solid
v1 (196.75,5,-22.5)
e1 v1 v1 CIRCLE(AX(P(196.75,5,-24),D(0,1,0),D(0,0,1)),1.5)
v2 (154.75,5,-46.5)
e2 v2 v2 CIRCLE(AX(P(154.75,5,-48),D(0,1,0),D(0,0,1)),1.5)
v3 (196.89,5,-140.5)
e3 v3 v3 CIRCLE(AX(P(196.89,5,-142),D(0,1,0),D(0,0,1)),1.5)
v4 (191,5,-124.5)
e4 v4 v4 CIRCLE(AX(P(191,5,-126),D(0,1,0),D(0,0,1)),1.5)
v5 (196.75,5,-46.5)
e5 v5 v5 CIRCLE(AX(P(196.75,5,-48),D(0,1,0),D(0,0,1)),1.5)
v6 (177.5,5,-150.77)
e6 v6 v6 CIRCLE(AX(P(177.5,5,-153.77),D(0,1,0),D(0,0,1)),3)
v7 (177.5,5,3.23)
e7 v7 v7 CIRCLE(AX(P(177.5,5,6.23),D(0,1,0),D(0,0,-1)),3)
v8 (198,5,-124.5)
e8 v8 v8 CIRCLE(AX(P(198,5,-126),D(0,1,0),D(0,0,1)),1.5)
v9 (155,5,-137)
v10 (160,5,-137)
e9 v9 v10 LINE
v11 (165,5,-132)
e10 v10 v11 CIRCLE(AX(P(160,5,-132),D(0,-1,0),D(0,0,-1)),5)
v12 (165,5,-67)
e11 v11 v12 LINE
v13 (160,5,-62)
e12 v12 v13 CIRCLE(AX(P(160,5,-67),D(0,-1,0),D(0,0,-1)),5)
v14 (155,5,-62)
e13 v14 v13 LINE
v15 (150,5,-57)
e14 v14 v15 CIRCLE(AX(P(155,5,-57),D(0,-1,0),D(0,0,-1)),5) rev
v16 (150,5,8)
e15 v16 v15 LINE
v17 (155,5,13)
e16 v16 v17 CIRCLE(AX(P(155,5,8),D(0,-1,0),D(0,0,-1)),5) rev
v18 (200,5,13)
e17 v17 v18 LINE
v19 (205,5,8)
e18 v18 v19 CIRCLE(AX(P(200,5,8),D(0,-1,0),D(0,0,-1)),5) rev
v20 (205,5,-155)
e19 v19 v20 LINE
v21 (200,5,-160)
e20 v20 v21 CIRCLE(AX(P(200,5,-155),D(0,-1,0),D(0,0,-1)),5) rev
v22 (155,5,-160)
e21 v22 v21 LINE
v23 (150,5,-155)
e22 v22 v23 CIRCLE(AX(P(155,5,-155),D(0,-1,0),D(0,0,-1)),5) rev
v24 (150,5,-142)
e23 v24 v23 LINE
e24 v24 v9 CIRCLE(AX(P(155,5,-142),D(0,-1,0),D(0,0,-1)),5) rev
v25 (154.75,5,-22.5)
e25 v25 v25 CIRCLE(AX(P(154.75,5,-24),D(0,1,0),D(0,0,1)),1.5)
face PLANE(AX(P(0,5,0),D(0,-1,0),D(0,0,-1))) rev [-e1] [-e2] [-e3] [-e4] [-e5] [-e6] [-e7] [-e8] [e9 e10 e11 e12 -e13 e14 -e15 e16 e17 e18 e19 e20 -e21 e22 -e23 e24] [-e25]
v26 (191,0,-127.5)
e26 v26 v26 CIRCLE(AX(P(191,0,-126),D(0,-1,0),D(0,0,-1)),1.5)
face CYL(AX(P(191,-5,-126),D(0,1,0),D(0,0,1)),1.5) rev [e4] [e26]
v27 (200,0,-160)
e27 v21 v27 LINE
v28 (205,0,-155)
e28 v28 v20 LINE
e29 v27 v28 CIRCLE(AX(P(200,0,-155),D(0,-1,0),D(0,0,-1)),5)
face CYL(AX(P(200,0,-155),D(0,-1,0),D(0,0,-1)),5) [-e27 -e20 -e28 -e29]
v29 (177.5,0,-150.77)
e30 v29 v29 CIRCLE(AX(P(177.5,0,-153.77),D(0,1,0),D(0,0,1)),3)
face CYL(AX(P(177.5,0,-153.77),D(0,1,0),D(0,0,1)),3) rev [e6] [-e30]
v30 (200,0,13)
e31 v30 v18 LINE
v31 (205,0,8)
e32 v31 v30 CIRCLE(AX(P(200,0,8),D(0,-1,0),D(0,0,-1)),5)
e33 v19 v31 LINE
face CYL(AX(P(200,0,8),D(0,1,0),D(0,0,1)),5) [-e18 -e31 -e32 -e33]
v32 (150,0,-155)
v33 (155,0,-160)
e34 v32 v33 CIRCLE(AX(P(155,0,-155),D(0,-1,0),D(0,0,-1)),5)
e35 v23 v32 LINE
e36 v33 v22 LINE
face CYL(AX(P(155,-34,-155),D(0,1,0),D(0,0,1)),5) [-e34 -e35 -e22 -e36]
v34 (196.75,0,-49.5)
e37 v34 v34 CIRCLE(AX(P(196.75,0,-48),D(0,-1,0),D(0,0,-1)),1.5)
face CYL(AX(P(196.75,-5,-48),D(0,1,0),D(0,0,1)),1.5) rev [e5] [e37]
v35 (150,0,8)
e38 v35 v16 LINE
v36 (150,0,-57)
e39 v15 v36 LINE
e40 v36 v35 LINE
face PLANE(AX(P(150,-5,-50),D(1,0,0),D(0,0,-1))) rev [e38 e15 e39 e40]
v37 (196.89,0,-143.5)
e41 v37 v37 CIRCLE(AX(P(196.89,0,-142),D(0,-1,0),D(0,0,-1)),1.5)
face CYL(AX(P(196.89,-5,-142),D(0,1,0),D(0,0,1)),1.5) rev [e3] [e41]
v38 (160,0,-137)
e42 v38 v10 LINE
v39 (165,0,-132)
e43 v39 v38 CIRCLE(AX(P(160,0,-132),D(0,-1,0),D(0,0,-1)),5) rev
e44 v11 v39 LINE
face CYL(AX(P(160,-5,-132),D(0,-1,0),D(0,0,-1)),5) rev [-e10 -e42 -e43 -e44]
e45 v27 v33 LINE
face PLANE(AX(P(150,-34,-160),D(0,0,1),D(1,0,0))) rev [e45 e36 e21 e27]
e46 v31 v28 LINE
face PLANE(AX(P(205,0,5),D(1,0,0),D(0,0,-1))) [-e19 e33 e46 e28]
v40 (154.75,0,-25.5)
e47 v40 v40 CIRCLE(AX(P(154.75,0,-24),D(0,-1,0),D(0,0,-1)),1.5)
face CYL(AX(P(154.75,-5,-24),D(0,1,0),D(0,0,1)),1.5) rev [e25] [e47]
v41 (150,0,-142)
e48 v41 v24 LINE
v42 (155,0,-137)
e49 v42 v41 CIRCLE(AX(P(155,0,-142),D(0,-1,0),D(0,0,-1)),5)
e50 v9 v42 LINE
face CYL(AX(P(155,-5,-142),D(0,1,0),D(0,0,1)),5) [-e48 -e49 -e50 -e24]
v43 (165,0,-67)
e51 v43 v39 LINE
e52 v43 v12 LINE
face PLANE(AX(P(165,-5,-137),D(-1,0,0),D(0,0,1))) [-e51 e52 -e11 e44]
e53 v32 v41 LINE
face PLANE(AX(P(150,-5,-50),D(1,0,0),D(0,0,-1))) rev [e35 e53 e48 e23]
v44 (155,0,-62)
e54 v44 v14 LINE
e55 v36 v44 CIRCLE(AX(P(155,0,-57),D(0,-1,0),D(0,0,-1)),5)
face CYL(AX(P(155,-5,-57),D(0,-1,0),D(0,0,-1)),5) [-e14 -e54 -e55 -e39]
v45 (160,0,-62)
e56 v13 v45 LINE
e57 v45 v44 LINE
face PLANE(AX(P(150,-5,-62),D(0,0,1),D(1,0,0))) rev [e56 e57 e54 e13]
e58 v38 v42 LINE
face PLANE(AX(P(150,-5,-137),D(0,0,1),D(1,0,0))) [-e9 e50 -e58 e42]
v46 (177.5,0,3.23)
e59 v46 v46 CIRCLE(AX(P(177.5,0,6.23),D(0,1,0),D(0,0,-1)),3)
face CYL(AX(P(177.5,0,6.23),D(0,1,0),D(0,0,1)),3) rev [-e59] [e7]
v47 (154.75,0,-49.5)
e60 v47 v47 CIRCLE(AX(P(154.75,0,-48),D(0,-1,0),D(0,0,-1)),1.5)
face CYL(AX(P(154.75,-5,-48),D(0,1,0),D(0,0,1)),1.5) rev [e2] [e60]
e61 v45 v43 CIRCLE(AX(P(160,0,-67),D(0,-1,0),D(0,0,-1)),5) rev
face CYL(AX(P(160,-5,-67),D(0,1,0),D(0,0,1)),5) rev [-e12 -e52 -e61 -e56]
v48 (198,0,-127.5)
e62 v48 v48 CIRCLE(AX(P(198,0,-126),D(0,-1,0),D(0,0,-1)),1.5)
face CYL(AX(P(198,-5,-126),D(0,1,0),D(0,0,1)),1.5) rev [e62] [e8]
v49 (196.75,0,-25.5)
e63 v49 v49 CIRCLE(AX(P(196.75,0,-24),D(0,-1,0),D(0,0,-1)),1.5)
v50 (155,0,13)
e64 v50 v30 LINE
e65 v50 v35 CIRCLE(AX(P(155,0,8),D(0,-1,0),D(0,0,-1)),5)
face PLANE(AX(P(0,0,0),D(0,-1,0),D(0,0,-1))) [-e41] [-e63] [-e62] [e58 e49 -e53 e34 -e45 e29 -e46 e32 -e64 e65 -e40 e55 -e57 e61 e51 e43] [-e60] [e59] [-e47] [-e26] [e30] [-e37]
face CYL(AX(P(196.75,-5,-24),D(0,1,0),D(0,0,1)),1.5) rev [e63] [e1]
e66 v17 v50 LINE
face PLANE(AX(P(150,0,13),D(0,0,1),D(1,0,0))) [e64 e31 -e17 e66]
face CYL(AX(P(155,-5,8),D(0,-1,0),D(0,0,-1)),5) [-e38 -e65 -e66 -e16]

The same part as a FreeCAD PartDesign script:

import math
import FreeCAD as App
import Part
import Sketcher
from FreeCAD import Vector
Q = App.Units.Quantity


def edges_at(feature, points):
    """Names of the edges that pass closest to the given points."""
    edges = feature.Shape.Edges
    near = lambda p: min(range(len(edges)), key=lambda i: edges[i].distToShape(Part.Vertex(*p))[0])
    return sorted({f"Edge{near(p) + 1}" for p in points})

doc = App.newDocument("Part")
body = doc.addObject("PartDesign::Body", "Body")

sketch1 = doc.addObject("Sketcher::SketchObject", "Sketch")
body.addObject(sketch1)
sketch1.AttachmentSupport = (doc.XZ_Plane, [""])
sketch1.MapMode = "FlatFace"
sketch1.addGeometry(Part.LineSegment(Vector(0, -200, 0), Vector(0, 0, 0)), False)
sketch1.addGeometry(Part.LineSegment(Vector(0, 0, 0), Vector(200, 0, 0)), False)
sketch1.addGeometry(Part.LineSegment(Vector(200, 0, 0), Vector(200, -200, 0)), False)
sketch1.addGeometry(Part.LineSegment(Vector(200, -200, 0), Vector(0, -200, 0)), False)
sketch1.addConstraint(Sketcher.Constraint("Coincident", 0, 2, 1, 1))
sketch1.addConstraint(Sketcher.Constraint("Coincident", 1, 2, 2, 1))
sketch1.addConstraint(Sketcher.Constraint("Coincident", 2, 2, 3, 1))
sketch1.addConstraint(Sketcher.Constraint("Coincident", 3, 2, 0, 1))
sketch1.addConstraint(Sketcher.Constraint("Vertical", 0))
sketch1.addConstraint(Sketcher.Constraint("Horizontal", 1))
sketch1.addConstraint(Sketcher.Constraint("Vertical", 2))
sketch1.addConstraint(Sketcher.Constraint("Horizontal", 3))
sketch1.addConstraint(Sketcher.Constraint("Coincident", 0, 2, -1, 1))
sketch1.addConstraint(Sketcher.Constraint("Equal", 3, 0))
sketch1.addConstraint(Sketcher.Constraint("DistanceX", 1, 1, 1, 2, Q("200 mm")))
pad1 = doc.addObject("PartDesign::Pad", "Pad")
body.addObject(pad1)
pad1.Profile = sketch1
pad1.Length = 5
pad1.Reversed = True

sketch2 = doc.addObject("Sketcher::SketchObject", "Sketch001")
body.addObject(sketch2)
sketch2.AttachmentSupport = (doc.XZ_Plane, [""])
sketch2.MapMode = "FlatFace"
sketch2.AttachmentOffset = App.Placement(Vector(0, 0, -5), App.Rotation())
sketch2.addGeometry(Part.LineSegment(Vector(50, -150, 0), Vector(50, -50, 0)), False)
sketch2.addGeometry(Part.LineSegment(Vector(50, -50, 0), Vector(150, -50, 0)), False)
sketch2.addGeometry(Part.LineSegment(Vector(150, -50, 0), Vector(150, -150, 0)), False)
sketch2.addGeometry(Part.LineSegment(Vector(150, -150, 0), Vector(50, -150, 0)), False)
sketch2.addConstraint(Sketcher.Constraint("Coincident", 0, 2, 1, 1))
sketch2.addConstraint(Sketcher.Constraint("Coincident", 1, 2, 2, 1))
sketch2.addConstraint(Sketcher.Constraint("Coincident", 2, 2, 3, 1))
sketch2.addConstraint(Sketcher.Constraint("Coincident", 3, 2, 0, 1))
sketch2.addConstraint(Sketcher.Constraint("Vertical", 0))
sketch2.addConstraint(Sketcher.Constraint("Horizontal", 1))
sketch2.addConstraint(Sketcher.Constraint("Vertical", 2))
sketch2.addConstraint(Sketcher.Constraint("Horizontal", 3))
sketch2.addConstraint(Sketcher.Constraint("Equal", 3, 0))
sketch2.addConstraint(Sketcher.Constraint("DistanceX", 1, 1, 1, 2, Q("100 mm")))
sketch2.addConstraint(Sketcher.Constraint("DistanceX", -1, 1, 0, 2, Q("50 mm")))
sketch2.addConstraint(Sketcher.Constraint("DistanceY", 0, 2, -1, 1, Q("50 mm")))
pocket1 = doc.addObject("PartDesign::Pocket", "Pocket")
body.addObject(pocket1)
pocket1.Profile = sketch2
pocket1.Length = 10
pocket1.Reversed = True
doc.recompute()

fillet = doc.addObject("PartDesign::Fillet", "Fillet")
body.addObject(fillet)
fillet.Base = (pocket1, edges_at(pocket1, [
    (150, 2.5, -150),
    (150, 2.5, -50),
    (50, 2.5, -50),
    (50, 2.5, -150),
]))
fillet.Radius = 10
doc.recompute()

fillet2 = doc.addObject("PartDesign::Fillet", "Fillet001")
body.addObject(fillet2)
fillet2.Base = (fillet, edges_at(fillet, [
    (0, 2.5, -200),
    (200, 2.5, -200),
    (200, 2.5, 0),
    (0, 2.5, 0),
]))
fillet2.Radius = 10

sketch3 = doc.addObject("Sketcher::SketchObject", "Sketch002")
body.addObject(sketch3)
sketch3.AttachmentSupport = (doc.XZ_Plane, [""])
sketch3.MapMode = "FlatFace"
sketch3.AttachmentOffset = App.Placement(Vector(0, 0, -5), App.Rotation())
sketch3.addGeometry(Part.Circle(Vector(10, -190, 0), Vector(0, 0, 1), 3), False)
sketch3.addGeometry(Part.Circle(Vector(190, -190, 0), Vector(0, 0, 1), 3), False)
sketch3.addGeometry(Part.Circle(Vector(190, -10, 0), Vector(0, 0, 1), 3), False)
sketch3.addGeometry(Part.Circle(Vector(10, -10, 0), Vector(0, 0, 1), 3), False)
sketch3.addConstraint(Sketcher.Constraint("Equal", 0, 1))
sketch3.addConstraint(Sketcher.Constraint("Equal", 1, 2))
sketch3.addConstraint(Sketcher.Constraint("Equal", 2, 3))
sketch3.addConstraint(Sketcher.Constraint("Horizontal", 0, 3, 1, 3))
sketch3.addConstraint(Sketcher.Constraint("Horizontal", 2, 3, 3, 3))
sketch3.addConstraint(Sketcher.Constraint("Vertical", 1, 3, 2, 3))
sketch3.addConstraint(Sketcher.Constraint("Vertical", 0, 3, 3, 3))
sketch3.addConstraint(Sketcher.Constraint("Diameter", 0, Q("6 mm")))
sketch3.addConstraint(Sketcher.Constraint("DistanceX", -1, 1, 0, 3, Q("10 mm")))
sketch3.addConstraint(Sketcher.Constraint("DistanceY", 0, 3, -1, 1, Q("190 mm")))
sketch3.addConstraint(Sketcher.Constraint("DistanceX", -1, 1, 1, 3, Q("190 mm")))
sketch3.addConstraint(Sketcher.Constraint("DistanceY", 2, 3, -1, 1, Q("10 mm")))
pocket2 = doc.addObject("PartDesign::Pocket", "Pocket001")
body.addObject(pocket2)
pocket2.Profile = sketch3
pocket2.Length = 10
pocket2.Reversed = True

sketch4 = doc.addObject("Sketcher::SketchObject", "Sketch003")
body.addObject(sketch4)
sketch4.AttachmentSupport = (doc.XZ_Plane, [""])
sketch4.MapMode = "FlatFace"
sketch4.AttachmentOffset = App.Placement(Vector(0, 0, -5), App.Rotation())
sketch4.addGeometry(Part.Circle(Vector(198, -126, 0), Vector(0, 0, 1), 1.5), False)
sketch4.addGeometry(Part.Circle(Vector(191, -126, 0), Vector(0, 0, 1), 1.5), False)
sketch4.addGeometry(Part.Circle(Vector(196.89, -142, 0), Vector(0, 0, 1), 1.5), False)
sketch4.addGeometry(Part.Circle(Vector(154.75, -48, 0), Vector(0, 0, 1), 1.5), False)
sketch4.addGeometry(Part.Circle(Vector(196.75, -48, 0), Vector(0, 0, 1), 1.5), False)
sketch4.addGeometry(Part.Circle(Vector(196.75, -24, 0), Vector(0, 0, 1), 1.5), False)
sketch4.addGeometry(Part.Circle(Vector(154.75, -24, 0), Vector(0, 0, 1), 1.5), False)
sketch4.addGeometry(Part.Circle(Vector(242.150034, 166.330778, 0), Vector(0, 0, 1), 1.5), False)
sketch4.addGeometry(Part.Circle(Vector(285.400034, 64.330778, 0), Vector(0, 0, 1), 1.5), False)
sketch4.addGeometry(Part.Circle(Vector(242.150034, 142.330778, 0), Vector(0, 0, 1), 1.5), False)
sketch4.addGeometry(Part.Circle(Vector(284.290034, 48.330778, 0), Vector(0, 0, 1), 1.5), False)
sketch4.addGeometry(Part.Circle(Vector(284.150034, 142.330778, 0), Vector(0, 0, 1), 1.5), False)
sketch4.addGeometry(Part.Circle(Vector(284.150034, 166.330778, 0), Vector(0, 0, 1), 1.5), False)
sketch4.addGeometry(Part.Circle(Vector(278.400034, 64.330778, 0), Vector(0, 0, 1), 1.5), False)
sketch4.addConstraint(Sketcher.Constraint("Equal", 0, 1))
sketch4.addConstraint(Sketcher.Constraint("Equal", 1, 2))
sketch4.addConstraint(Sketcher.Constraint("Equal", 2, 3))
sketch4.addConstraint(Sketcher.Constraint("Equal", 3, 4))
sketch4.addConstraint(Sketcher.Constraint("Equal", 4, 5))
sketch4.addConstraint(Sketcher.Constraint("Equal", 5, 6))
sketch4.addConstraint(Sketcher.Constraint("Equal", 6, 7))
sketch4.addConstraint(Sketcher.Constraint("Equal", 7, 8))
sketch4.addConstraint(Sketcher.Constraint("Equal", 8, 9))
sketch4.addConstraint(Sketcher.Constraint("Equal", 9, 10))
sketch4.addConstraint(Sketcher.Constraint("Equal", 10, 11))
sketch4.addConstraint(Sketcher.Constraint("Equal", 11, 12))
sketch4.addConstraint(Sketcher.Constraint("Equal", 12, 13))
sketch4.addConstraint(Sketcher.Constraint("Horizontal", 0, 3, 1, 3))
sketch4.addConstraint(Sketcher.Constraint("Horizontal", 3, 3, 4, 3))
sketch4.addConstraint(Sketcher.Constraint("Horizontal", 5, 3, 6, 3))
sketch4.addConstraint(Sketcher.Constraint("Horizontal", 9, 3, 11, 3))
sketch4.addConstraint(Sketcher.Constraint("Horizontal", 7, 3, 12, 3))
sketch4.addConstraint(Sketcher.Constraint("Horizontal", 8, 3, 13, 3))
sketch4.addConstraint(Sketcher.Constraint("Vertical", 4, 3, 5, 3))
sketch4.addConstraint(Sketcher.Constraint("Vertical", 3, 3, 6, 3))
sketch4.addConstraint(Sketcher.Constraint("Vertical", 7, 3, 9, 3))
sketch4.addConstraint(Sketcher.Constraint("Vertical", 11, 3, 12, 3))
sketch4.addConstraint(Sketcher.Constraint("Diameter", 0, Q("3 mm")))
sketch4.addConstraint(Sketcher.Constraint("DistanceX", -1, 1, 0, 3, Q("198 mm")))
sketch4.addConstraint(Sketcher.Constraint("DistanceY", 0, 3, -1, 1, Q("126 mm")))
sketch4.addConstraint(Sketcher.Constraint("DistanceX", -1, 1, 1, 3, Q("191 mm")))
sketch4.addConstraint(Sketcher.Constraint("DistanceY", 2, 3, -1, 1, Q("142 mm")))
sketch4.addConstraint(Sketcher.Constraint("DistanceY", 3, 3, -1, 1, Q("48 mm")))
sketch4.addConstraint(Sketcher.Constraint("DistanceY", 5, 3, -1, 1, Q("24 mm")))
sketch4.addConstraint(Sketcher.Constraint("DistanceX", 3, 3, 4, 3, Q("42 mm")))
sketch4.addConstraint(Sketcher.Constraint("DistanceY", 8, 3, 7, 3, Q("102 mm")))
sketch4.addConstraint(Sketcher.Constraint("DistanceY", 9, 3, 7, 3, Q("24 mm")))
sketch4.addConstraint(Sketcher.Constraint("DistanceY", 10, 3, 8, 3, Q("16 mm")))
sketch4.addConstraint(Sketcher.Constraint("DistanceX", 9, 3, 11, 3, Q("42 mm")))
sketch4.addConstraint(Sketcher.Constraint("DistanceX", 13, 3, 8, 3, Q("7 mm")))
sketch4.addConstraint(Sketcher.Constraint("DistanceX", -1, 1, 2, 3, Q("196.89 mm")))
sketch4.addConstraint(Sketcher.Constraint("DistanceX", -1, 1, 3, 3, Q("154.75 mm")))
sketch4.addConstraint(Sketcher.Constraint("DistanceX", 7, 3, 8, 3, Q("43.25 mm")))
sketch4.addConstraint(Sketcher.Constraint("DistanceX", 10, 3, 8, 3, Q("1.11 mm")))
sketch4.addConstraint(Sketcher.Constraint("DistanceY", -1, 1, 7, 3, Q("166.330778 mm")))
sketch4.addConstraint(Sketcher.Constraint("DistanceX", -1, 1, 7, 3, Q("242.150034 mm")))
pocket3 = doc.addObject("PartDesign::Pocket", "Pocket002")
body.addObject(pocket3)
pocket3.Profile = sketch4
pocket3.Length = 10
pocket3.Reversed = True

sketch5 = doc.addObject("Sketcher::SketchObject", "Sketch004")
body.addObject(sketch5)
sketch5.AttachmentSupport = (doc.XZ_Plane, [""])
sketch5.MapMode = "FlatFace"
sketch5.AttachmentOffset = App.Placement(Vector(0, 0, -5), App.Rotation())
sketch5.addGeometry(Part.LineSegment(Vector(-5, -205, 0), Vector(-5, 5, 0)), False)
sketch5.addGeometry(Part.LineSegment(Vector(-5, 5, 0), Vector(205, 5, 0)), False)
sketch5.addGeometry(Part.LineSegment(Vector(205, 5, 0), Vector(205, -205, 0)), False)
sketch5.addGeometry(Part.LineSegment(Vector(205, -205, 0), Vector(-5, -205, 0)), False)
sketch5.addGeometry(Part.LineSegment(Vector(0, -10, 0), Vector(0, -190, 0)), False)
sketch5.addGeometry(Part.ArcOfCircle(Part.Circle(Vector(10, -190, 0), Vector(0, 0, 1), 10), math.radians(180), math.radians(270)), False)
sketch5.addGeometry(Part.LineSegment(Vector(10, -200, 0), Vector(190, -200, 0)), False)
sketch5.addGeometry(Part.ArcOfCircle(Part.Circle(Vector(190, -190, 0), Vector(0, 0, 1), 10), math.radians(-90), math.radians(0)), False)
sketch5.addGeometry(Part.LineSegment(Vector(200, -190, 0), Vector(200, -10, 0)), False)
sketch5.addGeometry(Part.ArcOfCircle(Part.Circle(Vector(190, -10, 0), Vector(0, 0, 1), 10), math.radians(0), math.radians(90)), False)
sketch5.addGeometry(Part.LineSegment(Vector(190, 0, 0), Vector(10, 0, 0)), False)
sketch5.addGeometry(Part.ArcOfCircle(Part.Circle(Vector(10, -10, 0), Vector(0, 0, 1), 10), math.radians(90), math.radians(180)), False)
sketch5.addConstraint(Sketcher.Constraint("Coincident", 0, 2, 1, 1))
sketch5.addConstraint(Sketcher.Constraint("Coincident", 1, 2, 2, 1))
sketch5.addConstraint(Sketcher.Constraint("Coincident", 2, 2, 3, 1))
sketch5.addConstraint(Sketcher.Constraint("Coincident", 3, 2, 0, 1))
sketch5.addConstraint(Sketcher.Constraint("Tangent", 4, 2, 5, 1))
sketch5.addConstraint(Sketcher.Constraint("Tangent", 5, 2, 6, 1))
sketch5.addConstraint(Sketcher.Constraint("Tangent", 6, 2, 7, 1))
sketch5.addConstraint(Sketcher.Constraint("Tangent", 7, 2, 8, 1))
sketch5.addConstraint(Sketcher.Constraint("Tangent", 8, 2, 9, 1))
sketch5.addConstraint(Sketcher.Constraint("Tangent", 9, 2, 10, 1))
sketch5.addConstraint(Sketcher.Constraint("Tangent", 10, 2, 11, 1))
sketch5.addConstraint(Sketcher.Constraint("Tangent", 11, 2, 4, 1))
sketch5.addConstraint(Sketcher.Constraint("Vertical", 0))
sketch5.addConstraint(Sketcher.Constraint("Horizontal", 1))
sketch5.addConstraint(Sketcher.Constraint("Vertical", 2))
sketch5.addConstraint(Sketcher.Constraint("Horizontal", 3))
sketch5.addConstraint(Sketcher.Constraint("Vertical", 4))
sketch5.addConstraint(Sketcher.Constraint("Horizontal", 6))
sketch5.addConstraint(Sketcher.Constraint("Vertical", 8))
sketch5.addConstraint(Sketcher.Constraint("Horizontal", 10))
sketch5.addConstraint(Sketcher.Constraint("Equal", 5, 7))
sketch5.addConstraint(Sketcher.Constraint("Equal", 7, 9))
sketch5.addConstraint(Sketcher.Constraint("Equal", 9, 11))
sketch5.addConstraint(Sketcher.Constraint("PointOnObject", 4, 2, -2))
sketch5.addConstraint(Sketcher.Constraint("PointOnObject", 9, 2, -1))
sketch5.addConstraint(Sketcher.Constraint("Equal", 3, 0))
sketch5.addConstraint(Sketcher.Constraint("Equal", 10, 4))
sketch5.addConstraint(Sketcher.Constraint("Radius", 5, Q("10 mm")))
sketch5.addConstraint(Sketcher.Constraint("DistanceX", 1, 1, 1, 2, Q("210 mm")))
sketch5.addConstraint(Sketcher.Constraint("DistanceX", 6, 1, 6, 2, Q("180 mm")))
sketch5.addConstraint(Sketcher.Constraint("DistanceX", 0, 2, -1, 1, Q("5 mm")))
sketch5.addConstraint(Sketcher.Constraint("DistanceY", -1, 1, 0, 2, Q("5 mm")))
pad2 = doc.addObject("PartDesign::Pad", "Pad001")
body.addObject(pad2)
pad2.Profile = sketch5
pad2.Length = 5
doc.recompute()

fillet3 = doc.addObject("PartDesign::Fillet", "Fillet002")
body.addObject(fillet3)
fillet3.Base = (pad2, edges_at(pad2, [
    (205, 2.5, -205),
    (205, 2.5, 5),
    (-5, 2.5, 5),
    (-5, 2.5, -205),
]))
fillet3.Radius = 10
doc.recompute()

datumline = doc.addObject("PartDesign::Line", "DatumLine")
body.addObject(datumline)
datumline.Placement = App.Placement(Vector(100, 0, -100), App.Rotation(Vector(0, 0, 1), Vector(0, 1, 0)))
polarpattern = doc.addObject("PartDesign::PolarPattern", "PolarPattern")
body.addObject(polarpattern)
polarpattern.Originals = [pocket3]
polarpattern.Axis = (datumline, [""])
polarpattern.Angle = 360
polarpattern.Occurrences = 4
body.Tip = polarpattern

sketch6 = doc.addObject("Sketcher::SketchObject", "Sketch005")
body.addObject(sketch6)
sketch6.AttachmentSupport = (doc.XZ_Plane, [""])
sketch6.MapMode = "FlatFace"
sketch6.AttachmentOffset = App.Placement(Vector(0, 0, -5), App.Rotation())
sketch6.addGeometry(Part.LineSegment(Vector(-35.703, -235.703, 0), Vector(-35.703, 35.703, 0)), False)
sketch6.addGeometry(Part.LineSegment(Vector(-35.703, 35.703, 0), Vector(235.703, 35.703, 0)), False)
sketch6.addGeometry(Part.LineSegment(Vector(235.703, 35.703, 0), Vector(235.703, -235.703, 0)), False)
sketch6.addGeometry(Part.LineSegment(Vector(235.703, -235.703, 0), Vector(-35.703, -235.703, 0)), False)
sketch6.addGeometry(Part.LineSegment(Vector(205, -17, 0), Vector(150, -17, 0)), False)
sketch6.addGeometry(Part.LineSegment(Vector(150, -17, 0), Vector(150, -149, 0)), False)
sketch6.addGeometry(Part.LineSegment(Vector(150, -149, 0), Vector(205, -149, 0)), False)
sketch6.addGeometry(Part.LineSegment(Vector(205, -149, 0), Vector(205, -17, 0)), False)
sketch6.addConstraint(Sketcher.Constraint("Coincident", 0, 2, 1, 1))
sketch6.addConstraint(Sketcher.Constraint("Coincident", 1, 2, 2, 1))
sketch6.addConstraint(Sketcher.Constraint("Coincident", 2, 2, 3, 1))
sketch6.addConstraint(Sketcher.Constraint("Coincident", 3, 2, 0, 1))
sketch6.addConstraint(Sketcher.Constraint("Coincident", 4, 2, 5, 1))
sketch6.addConstraint(Sketcher.Constraint("Coincident", 5, 2, 6, 1))
sketch6.addConstraint(Sketcher.Constraint("Coincident", 6, 2, 7, 1))
sketch6.addConstraint(Sketcher.Constraint("Coincident", 7, 2, 4, 1))
sketch6.addConstraint(Sketcher.Constraint("Vertical", 0))
sketch6.addConstraint(Sketcher.Constraint("Horizontal", 1))
sketch6.addConstraint(Sketcher.Constraint("Vertical", 2))
sketch6.addConstraint(Sketcher.Constraint("Horizontal", 3))
sketch6.addConstraint(Sketcher.Constraint("Horizontal", 4))
sketch6.addConstraint(Sketcher.Constraint("Vertical", 5))
sketch6.addConstraint(Sketcher.Constraint("Horizontal", 6))
sketch6.addConstraint(Sketcher.Constraint("Vertical", 7))
sketch6.addConstraint(Sketcher.Constraint("Equal", 3, 0))
sketch6.addConstraint(Sketcher.Constraint("DistanceX", 4, 2, 4, 1, Q("55 mm")))
sketch6.addConstraint(Sketcher.Constraint("DistanceY", 5, 2, 5, 1, Q("132 mm")))
sketch6.addConstraint(Sketcher.Constraint("DistanceX", -1, 1, 4, 2, Q("150 mm")))
sketch6.addConstraint(Sketcher.Constraint("DistanceY", 4, 2, -1, 1, Q("17 mm")))
sketch6.addConstraint(Sketcher.Constraint("DistanceX", 1, 1, 1, 2, Q("271.406 mm")))
sketch6.addConstraint(Sketcher.Constraint("DistanceX", 0, 2, -1, 1, Q("35.703 mm")))
sketch6.addConstraint(Sketcher.Constraint("DistanceY", -1, 1, 0, 2, Q("35.703 mm")))
pocket4 = doc.addObject("PartDesign::Pocket", "Pocket003")
body.addObject(pocket4)
pocket4.Profile = sketch6
pocket4.Length = 10
pocket4.Reversed = True

sketch7 = doc.addObject("Sketcher::SketchObject", "Sketch006")
body.addObject(sketch7)
sketch7.AttachmentSupport = (doc.XZ_Plane, [""])
sketch7.MapMode = "FlatFace"
sketch7.AttachmentOffset = App.Placement(Vector(0, 0, -5), App.Rotation())
sketch7.addGeometry(Part.LineSegment(Vector(150, -17, 0), Vector(150, 13, 0)), False)
sketch7.addGeometry(Part.LineSegment(Vector(150, 13, 0), Vector(205, 13, 0)), False)
sketch7.addGeometry(Part.LineSegment(Vector(205, 13, 0), Vector(205, -17, 0)), False)
sketch7.addGeometry(Part.LineSegment(Vector(205, -17, 0), Vector(150, -17, 0)), False)
sketch7.addGeometry(Part.LineSegment(Vector(150, -179, 0), Vector(150, -149, 0)), False)
sketch7.addGeometry(Part.LineSegment(Vector(150, -149, 0), Vector(205, -149, 0)), False)
sketch7.addGeometry(Part.LineSegment(Vector(205, -149, 0), Vector(205, -179, 0)), False)
sketch7.addGeometry(Part.LineSegment(Vector(205, -179, 0), Vector(150, -179, 0)), False)
sketch7.addConstraint(Sketcher.Constraint("Coincident", 0, 2, 1, 1))
sketch7.addConstraint(Sketcher.Constraint("Coincident", 1, 2, 2, 1))
sketch7.addConstraint(Sketcher.Constraint("Coincident", 2, 2, 3, 1))
sketch7.addConstraint(Sketcher.Constraint("Coincident", 3, 2, 0, 1))
sketch7.addConstraint(Sketcher.Constraint("Coincident", 4, 2, 5, 1))
sketch7.addConstraint(Sketcher.Constraint("Coincident", 5, 2, 6, 1))
sketch7.addConstraint(Sketcher.Constraint("Coincident", 6, 2, 7, 1))
sketch7.addConstraint(Sketcher.Constraint("Coincident", 7, 2, 4, 1))
sketch7.addConstraint(Sketcher.Constraint("Vertical", 0))
sketch7.addConstraint(Sketcher.Constraint("Horizontal", 1))
sketch7.addConstraint(Sketcher.Constraint("Vertical", 2))
sketch7.addConstraint(Sketcher.Constraint("Horizontal", 3))
sketch7.addConstraint(Sketcher.Constraint("Vertical", 4))
sketch7.addConstraint(Sketcher.Constraint("Horizontal", 5))
sketch7.addConstraint(Sketcher.Constraint("Vertical", 6))
sketch7.addConstraint(Sketcher.Constraint("Horizontal", 7))
sketch7.addConstraint(Sketcher.Constraint("Vertical", 3, 2, 4, 2))
sketch7.addConstraint(Sketcher.Constraint("Vertical", 2, 2, 5, 2))
sketch7.addConstraint(Sketcher.Constraint("Equal", 2, 4))
sketch7.addConstraint(Sketcher.Constraint("DistanceX", 1, 1, 1, 2, Q("55 mm")))
sketch7.addConstraint(Sketcher.Constraint("DistanceY", 0, 1, 0, 2, Q("30 mm")))
sketch7.addConstraint(Sketcher.Constraint("DistanceX", -1, 1, 0, 2, Q("150 mm")))
sketch7.addConstraint(Sketcher.Constraint("DistanceY", -1, 1, 0, 2, Q("13 mm")))
sketch7.addConstraint(Sketcher.Constraint("DistanceY", 4, 2, -1, 1, Q("149 mm")))
pad3 = doc.addObject("PartDesign::Pad", "Pad002")
body.addObject(pad3)
pad3.Profile = sketch7
pad3.Length = 5

sketch8 = doc.addObject("Sketcher::SketchObject", "Sketch007")
body.addObject(sketch8)
sketch8.AttachmentSupport = (doc.XZ_Plane, [""])
sketch8.MapMode = "FlatFace"
sketch8.AttachmentOffset = App.Placement(Vector(0, 0, -5), App.Rotation())
sketch8.addGeometry(Part.Circle(Vector(177.5, -153.77, 0), Vector(0, 0, 1), 3), False)
sketch8.addGeometry(Part.Circle(Vector(177.5, 6.23, 0), Vector(0, 0, 1), 3), False)
sketch8.addConstraint(Sketcher.Constraint("Equal", 0, 1))
sketch8.addConstraint(Sketcher.Constraint("Vertical", 0, 3, 1, 3))
sketch8.addConstraint(Sketcher.Constraint("Diameter", 0, Q("6 mm")))
sketch8.addConstraint(Sketcher.Constraint("DistanceY", 0, 3, 1, 3, Q("160 mm")))
sketch8.addConstraint(Sketcher.Constraint("DistanceX", -1, 1, 0, 3, Q("177.5 mm")))
sketch8.addConstraint(Sketcher.Constraint("DistanceY", 0, 3, -1, 1, Q("153.77 mm")))
pocket5 = doc.addObject("PartDesign::Pocket", "Pocket004")
body.addObject(pocket5)
pocket5.Profile = sketch8
pocket5.Length = 5
pocket5.Reversed = True

sketch9 = doc.addObject("Sketcher::SketchObject", "Sketch008")
body.addObject(sketch9)
sketch9.AttachmentSupport = (doc.XZ_Plane, [""])
sketch9.MapMode = "FlatFace"
sketch9.AttachmentOffset = App.Placement(Vector(0, 0, -5), App.Rotation())
sketch9.addGeometry(Part.LineSegment(Vector(150, -179, 0), Vector(150, -160, 0)), False)
sketch9.addGeometry(Part.LineSegment(Vector(150, -160, 0), Vector(205, -160, 0)), False)
sketch9.addGeometry(Part.LineSegment(Vector(205, -160, 0), Vector(205, -179, 0)), False)
sketch9.addGeometry(Part.LineSegment(Vector(205, -179, 0), Vector(150, -179, 0)), False)
sketch9.addConstraint(Sketcher.Constraint("Coincident", 0, 2, 1, 1))
sketch9.addConstraint(Sketcher.Constraint("Coincident", 1, 2, 2, 1))
sketch9.addConstraint(Sketcher.Constraint("Coincident", 2, 2, 3, 1))
sketch9.addConstraint(Sketcher.Constraint("Coincident", 3, 2, 0, 1))
sketch9.addConstraint(Sketcher.Constraint("Vertical", 0))
sketch9.addConstraint(Sketcher.Constraint("Horizontal", 1))
sketch9.addConstraint(Sketcher.Constraint("Vertical", 2))
sketch9.addConstraint(Sketcher.Constraint("Horizontal", 3))
sketch9.addConstraint(Sketcher.Constraint("DistanceX", 1, 1, 1, 2, Q("55 mm")))
sketch9.addConstraint(Sketcher.Constraint("DistanceY", 0, 1, 0, 2, Q("19 mm")))
sketch9.addConstraint(Sketcher.Constraint("DistanceX", -1, 1, 0, 2, Q("150 mm")))
sketch9.addConstraint(Sketcher.Constraint("DistanceY", 0, 2, -1, 1, Q("160 mm")))
pocket6 = doc.addObject("PartDesign::Pocket", "Pocket005")
body.addObject(pocket6)
pocket6.Profile = sketch9
pocket6.Length = 39
pocket6.Reversed = True
doc.recompute()

fillet4 = doc.addObject("PartDesign::Fillet", "Fillet003")
body.addObject(fillet4)
fillet4.Base = (pocket6, edges_at(pocket6, [
    (205, 2.5, 13),
    (150, 2.5, 13),
    (150, 2.5, -160),
    (205, 2.5, -160),
]))
fillet4.Radius = 5

sketch10 = doc.addObject("Sketcher::SketchObject", "Sketch009")
body.addObject(sketch10)
sketch10.AttachmentSupport = (doc.XZ_Plane, [""])
sketch10.MapMode = "FlatFace"
sketch10.AttachmentOffset = App.Placement(Vector(0, 0, -5), App.Rotation())
sketch10.addGeometry(Part.LineSegment(Vector(150, -137, 0), Vector(150, -62, 0)), False)
sketch10.addGeometry(Part.LineSegment(Vector(150, -62, 0), Vector(165, -62, 0)), False)
sketch10.addGeometry(Part.LineSegment(Vector(165, -62, 0), Vector(165, -137, 0)), False)
sketch10.addGeometry(Part.LineSegment(Vector(165, -137, 0), Vector(150, -137, 0)), False)
sketch10.addConstraint(Sketcher.Constraint("Coincident", 0, 2, 1, 1))
sketch10.addConstraint(Sketcher.Constraint("Coincident", 1, 2, 2, 1))
sketch10.addConstraint(Sketcher.Constraint("Coincident", 2, 2, 3, 1))
sketch10.addConstraint(Sketcher.Constraint("Coincident", 3, 2, 0, 1))
sketch10.addConstraint(Sketcher.Constraint("Vertical", 0))
sketch10.addConstraint(Sketcher.Constraint("Horizontal", 1))
sketch10.addConstraint(Sketcher.Constraint("Vertical", 2))
sketch10.addConstraint(Sketcher.Constraint("Horizontal", 3))
sketch10.addConstraint(Sketcher.Constraint("DistanceX", 1, 1, 1, 2, Q("15 mm")))
sketch10.addConstraint(Sketcher.Constraint("DistanceY", 0, 1, 0, 2, Q("75 mm")))
sketch10.addConstraint(Sketcher.Constraint("DistanceX", -1, 1, 0, 2, Q("150 mm")))
sketch10.addConstraint(Sketcher.Constraint("DistanceY", 0, 2, -1, 1, Q("62 mm")))
pocket7 = doc.addObject("PartDesign::Pocket", "Pocket006")
body.addObject(pocket7)
pocket7.Profile = sketch10
pocket7.Length = 10
pocket7.Reversed = True
doc.recompute()

fillet5 = doc.addObject("PartDesign::Fillet", "Fillet004")
body.addObject(fillet5)
fillet5.Base = (pocket7, edges_at(pocket7, [
    (150, 2.5, -62),
    (150, 2.5, -137),
    (165, 2.5, -137),
    (165, 2.5, -62),
]))
fillet5.Radius = 5

doc.recompute()
